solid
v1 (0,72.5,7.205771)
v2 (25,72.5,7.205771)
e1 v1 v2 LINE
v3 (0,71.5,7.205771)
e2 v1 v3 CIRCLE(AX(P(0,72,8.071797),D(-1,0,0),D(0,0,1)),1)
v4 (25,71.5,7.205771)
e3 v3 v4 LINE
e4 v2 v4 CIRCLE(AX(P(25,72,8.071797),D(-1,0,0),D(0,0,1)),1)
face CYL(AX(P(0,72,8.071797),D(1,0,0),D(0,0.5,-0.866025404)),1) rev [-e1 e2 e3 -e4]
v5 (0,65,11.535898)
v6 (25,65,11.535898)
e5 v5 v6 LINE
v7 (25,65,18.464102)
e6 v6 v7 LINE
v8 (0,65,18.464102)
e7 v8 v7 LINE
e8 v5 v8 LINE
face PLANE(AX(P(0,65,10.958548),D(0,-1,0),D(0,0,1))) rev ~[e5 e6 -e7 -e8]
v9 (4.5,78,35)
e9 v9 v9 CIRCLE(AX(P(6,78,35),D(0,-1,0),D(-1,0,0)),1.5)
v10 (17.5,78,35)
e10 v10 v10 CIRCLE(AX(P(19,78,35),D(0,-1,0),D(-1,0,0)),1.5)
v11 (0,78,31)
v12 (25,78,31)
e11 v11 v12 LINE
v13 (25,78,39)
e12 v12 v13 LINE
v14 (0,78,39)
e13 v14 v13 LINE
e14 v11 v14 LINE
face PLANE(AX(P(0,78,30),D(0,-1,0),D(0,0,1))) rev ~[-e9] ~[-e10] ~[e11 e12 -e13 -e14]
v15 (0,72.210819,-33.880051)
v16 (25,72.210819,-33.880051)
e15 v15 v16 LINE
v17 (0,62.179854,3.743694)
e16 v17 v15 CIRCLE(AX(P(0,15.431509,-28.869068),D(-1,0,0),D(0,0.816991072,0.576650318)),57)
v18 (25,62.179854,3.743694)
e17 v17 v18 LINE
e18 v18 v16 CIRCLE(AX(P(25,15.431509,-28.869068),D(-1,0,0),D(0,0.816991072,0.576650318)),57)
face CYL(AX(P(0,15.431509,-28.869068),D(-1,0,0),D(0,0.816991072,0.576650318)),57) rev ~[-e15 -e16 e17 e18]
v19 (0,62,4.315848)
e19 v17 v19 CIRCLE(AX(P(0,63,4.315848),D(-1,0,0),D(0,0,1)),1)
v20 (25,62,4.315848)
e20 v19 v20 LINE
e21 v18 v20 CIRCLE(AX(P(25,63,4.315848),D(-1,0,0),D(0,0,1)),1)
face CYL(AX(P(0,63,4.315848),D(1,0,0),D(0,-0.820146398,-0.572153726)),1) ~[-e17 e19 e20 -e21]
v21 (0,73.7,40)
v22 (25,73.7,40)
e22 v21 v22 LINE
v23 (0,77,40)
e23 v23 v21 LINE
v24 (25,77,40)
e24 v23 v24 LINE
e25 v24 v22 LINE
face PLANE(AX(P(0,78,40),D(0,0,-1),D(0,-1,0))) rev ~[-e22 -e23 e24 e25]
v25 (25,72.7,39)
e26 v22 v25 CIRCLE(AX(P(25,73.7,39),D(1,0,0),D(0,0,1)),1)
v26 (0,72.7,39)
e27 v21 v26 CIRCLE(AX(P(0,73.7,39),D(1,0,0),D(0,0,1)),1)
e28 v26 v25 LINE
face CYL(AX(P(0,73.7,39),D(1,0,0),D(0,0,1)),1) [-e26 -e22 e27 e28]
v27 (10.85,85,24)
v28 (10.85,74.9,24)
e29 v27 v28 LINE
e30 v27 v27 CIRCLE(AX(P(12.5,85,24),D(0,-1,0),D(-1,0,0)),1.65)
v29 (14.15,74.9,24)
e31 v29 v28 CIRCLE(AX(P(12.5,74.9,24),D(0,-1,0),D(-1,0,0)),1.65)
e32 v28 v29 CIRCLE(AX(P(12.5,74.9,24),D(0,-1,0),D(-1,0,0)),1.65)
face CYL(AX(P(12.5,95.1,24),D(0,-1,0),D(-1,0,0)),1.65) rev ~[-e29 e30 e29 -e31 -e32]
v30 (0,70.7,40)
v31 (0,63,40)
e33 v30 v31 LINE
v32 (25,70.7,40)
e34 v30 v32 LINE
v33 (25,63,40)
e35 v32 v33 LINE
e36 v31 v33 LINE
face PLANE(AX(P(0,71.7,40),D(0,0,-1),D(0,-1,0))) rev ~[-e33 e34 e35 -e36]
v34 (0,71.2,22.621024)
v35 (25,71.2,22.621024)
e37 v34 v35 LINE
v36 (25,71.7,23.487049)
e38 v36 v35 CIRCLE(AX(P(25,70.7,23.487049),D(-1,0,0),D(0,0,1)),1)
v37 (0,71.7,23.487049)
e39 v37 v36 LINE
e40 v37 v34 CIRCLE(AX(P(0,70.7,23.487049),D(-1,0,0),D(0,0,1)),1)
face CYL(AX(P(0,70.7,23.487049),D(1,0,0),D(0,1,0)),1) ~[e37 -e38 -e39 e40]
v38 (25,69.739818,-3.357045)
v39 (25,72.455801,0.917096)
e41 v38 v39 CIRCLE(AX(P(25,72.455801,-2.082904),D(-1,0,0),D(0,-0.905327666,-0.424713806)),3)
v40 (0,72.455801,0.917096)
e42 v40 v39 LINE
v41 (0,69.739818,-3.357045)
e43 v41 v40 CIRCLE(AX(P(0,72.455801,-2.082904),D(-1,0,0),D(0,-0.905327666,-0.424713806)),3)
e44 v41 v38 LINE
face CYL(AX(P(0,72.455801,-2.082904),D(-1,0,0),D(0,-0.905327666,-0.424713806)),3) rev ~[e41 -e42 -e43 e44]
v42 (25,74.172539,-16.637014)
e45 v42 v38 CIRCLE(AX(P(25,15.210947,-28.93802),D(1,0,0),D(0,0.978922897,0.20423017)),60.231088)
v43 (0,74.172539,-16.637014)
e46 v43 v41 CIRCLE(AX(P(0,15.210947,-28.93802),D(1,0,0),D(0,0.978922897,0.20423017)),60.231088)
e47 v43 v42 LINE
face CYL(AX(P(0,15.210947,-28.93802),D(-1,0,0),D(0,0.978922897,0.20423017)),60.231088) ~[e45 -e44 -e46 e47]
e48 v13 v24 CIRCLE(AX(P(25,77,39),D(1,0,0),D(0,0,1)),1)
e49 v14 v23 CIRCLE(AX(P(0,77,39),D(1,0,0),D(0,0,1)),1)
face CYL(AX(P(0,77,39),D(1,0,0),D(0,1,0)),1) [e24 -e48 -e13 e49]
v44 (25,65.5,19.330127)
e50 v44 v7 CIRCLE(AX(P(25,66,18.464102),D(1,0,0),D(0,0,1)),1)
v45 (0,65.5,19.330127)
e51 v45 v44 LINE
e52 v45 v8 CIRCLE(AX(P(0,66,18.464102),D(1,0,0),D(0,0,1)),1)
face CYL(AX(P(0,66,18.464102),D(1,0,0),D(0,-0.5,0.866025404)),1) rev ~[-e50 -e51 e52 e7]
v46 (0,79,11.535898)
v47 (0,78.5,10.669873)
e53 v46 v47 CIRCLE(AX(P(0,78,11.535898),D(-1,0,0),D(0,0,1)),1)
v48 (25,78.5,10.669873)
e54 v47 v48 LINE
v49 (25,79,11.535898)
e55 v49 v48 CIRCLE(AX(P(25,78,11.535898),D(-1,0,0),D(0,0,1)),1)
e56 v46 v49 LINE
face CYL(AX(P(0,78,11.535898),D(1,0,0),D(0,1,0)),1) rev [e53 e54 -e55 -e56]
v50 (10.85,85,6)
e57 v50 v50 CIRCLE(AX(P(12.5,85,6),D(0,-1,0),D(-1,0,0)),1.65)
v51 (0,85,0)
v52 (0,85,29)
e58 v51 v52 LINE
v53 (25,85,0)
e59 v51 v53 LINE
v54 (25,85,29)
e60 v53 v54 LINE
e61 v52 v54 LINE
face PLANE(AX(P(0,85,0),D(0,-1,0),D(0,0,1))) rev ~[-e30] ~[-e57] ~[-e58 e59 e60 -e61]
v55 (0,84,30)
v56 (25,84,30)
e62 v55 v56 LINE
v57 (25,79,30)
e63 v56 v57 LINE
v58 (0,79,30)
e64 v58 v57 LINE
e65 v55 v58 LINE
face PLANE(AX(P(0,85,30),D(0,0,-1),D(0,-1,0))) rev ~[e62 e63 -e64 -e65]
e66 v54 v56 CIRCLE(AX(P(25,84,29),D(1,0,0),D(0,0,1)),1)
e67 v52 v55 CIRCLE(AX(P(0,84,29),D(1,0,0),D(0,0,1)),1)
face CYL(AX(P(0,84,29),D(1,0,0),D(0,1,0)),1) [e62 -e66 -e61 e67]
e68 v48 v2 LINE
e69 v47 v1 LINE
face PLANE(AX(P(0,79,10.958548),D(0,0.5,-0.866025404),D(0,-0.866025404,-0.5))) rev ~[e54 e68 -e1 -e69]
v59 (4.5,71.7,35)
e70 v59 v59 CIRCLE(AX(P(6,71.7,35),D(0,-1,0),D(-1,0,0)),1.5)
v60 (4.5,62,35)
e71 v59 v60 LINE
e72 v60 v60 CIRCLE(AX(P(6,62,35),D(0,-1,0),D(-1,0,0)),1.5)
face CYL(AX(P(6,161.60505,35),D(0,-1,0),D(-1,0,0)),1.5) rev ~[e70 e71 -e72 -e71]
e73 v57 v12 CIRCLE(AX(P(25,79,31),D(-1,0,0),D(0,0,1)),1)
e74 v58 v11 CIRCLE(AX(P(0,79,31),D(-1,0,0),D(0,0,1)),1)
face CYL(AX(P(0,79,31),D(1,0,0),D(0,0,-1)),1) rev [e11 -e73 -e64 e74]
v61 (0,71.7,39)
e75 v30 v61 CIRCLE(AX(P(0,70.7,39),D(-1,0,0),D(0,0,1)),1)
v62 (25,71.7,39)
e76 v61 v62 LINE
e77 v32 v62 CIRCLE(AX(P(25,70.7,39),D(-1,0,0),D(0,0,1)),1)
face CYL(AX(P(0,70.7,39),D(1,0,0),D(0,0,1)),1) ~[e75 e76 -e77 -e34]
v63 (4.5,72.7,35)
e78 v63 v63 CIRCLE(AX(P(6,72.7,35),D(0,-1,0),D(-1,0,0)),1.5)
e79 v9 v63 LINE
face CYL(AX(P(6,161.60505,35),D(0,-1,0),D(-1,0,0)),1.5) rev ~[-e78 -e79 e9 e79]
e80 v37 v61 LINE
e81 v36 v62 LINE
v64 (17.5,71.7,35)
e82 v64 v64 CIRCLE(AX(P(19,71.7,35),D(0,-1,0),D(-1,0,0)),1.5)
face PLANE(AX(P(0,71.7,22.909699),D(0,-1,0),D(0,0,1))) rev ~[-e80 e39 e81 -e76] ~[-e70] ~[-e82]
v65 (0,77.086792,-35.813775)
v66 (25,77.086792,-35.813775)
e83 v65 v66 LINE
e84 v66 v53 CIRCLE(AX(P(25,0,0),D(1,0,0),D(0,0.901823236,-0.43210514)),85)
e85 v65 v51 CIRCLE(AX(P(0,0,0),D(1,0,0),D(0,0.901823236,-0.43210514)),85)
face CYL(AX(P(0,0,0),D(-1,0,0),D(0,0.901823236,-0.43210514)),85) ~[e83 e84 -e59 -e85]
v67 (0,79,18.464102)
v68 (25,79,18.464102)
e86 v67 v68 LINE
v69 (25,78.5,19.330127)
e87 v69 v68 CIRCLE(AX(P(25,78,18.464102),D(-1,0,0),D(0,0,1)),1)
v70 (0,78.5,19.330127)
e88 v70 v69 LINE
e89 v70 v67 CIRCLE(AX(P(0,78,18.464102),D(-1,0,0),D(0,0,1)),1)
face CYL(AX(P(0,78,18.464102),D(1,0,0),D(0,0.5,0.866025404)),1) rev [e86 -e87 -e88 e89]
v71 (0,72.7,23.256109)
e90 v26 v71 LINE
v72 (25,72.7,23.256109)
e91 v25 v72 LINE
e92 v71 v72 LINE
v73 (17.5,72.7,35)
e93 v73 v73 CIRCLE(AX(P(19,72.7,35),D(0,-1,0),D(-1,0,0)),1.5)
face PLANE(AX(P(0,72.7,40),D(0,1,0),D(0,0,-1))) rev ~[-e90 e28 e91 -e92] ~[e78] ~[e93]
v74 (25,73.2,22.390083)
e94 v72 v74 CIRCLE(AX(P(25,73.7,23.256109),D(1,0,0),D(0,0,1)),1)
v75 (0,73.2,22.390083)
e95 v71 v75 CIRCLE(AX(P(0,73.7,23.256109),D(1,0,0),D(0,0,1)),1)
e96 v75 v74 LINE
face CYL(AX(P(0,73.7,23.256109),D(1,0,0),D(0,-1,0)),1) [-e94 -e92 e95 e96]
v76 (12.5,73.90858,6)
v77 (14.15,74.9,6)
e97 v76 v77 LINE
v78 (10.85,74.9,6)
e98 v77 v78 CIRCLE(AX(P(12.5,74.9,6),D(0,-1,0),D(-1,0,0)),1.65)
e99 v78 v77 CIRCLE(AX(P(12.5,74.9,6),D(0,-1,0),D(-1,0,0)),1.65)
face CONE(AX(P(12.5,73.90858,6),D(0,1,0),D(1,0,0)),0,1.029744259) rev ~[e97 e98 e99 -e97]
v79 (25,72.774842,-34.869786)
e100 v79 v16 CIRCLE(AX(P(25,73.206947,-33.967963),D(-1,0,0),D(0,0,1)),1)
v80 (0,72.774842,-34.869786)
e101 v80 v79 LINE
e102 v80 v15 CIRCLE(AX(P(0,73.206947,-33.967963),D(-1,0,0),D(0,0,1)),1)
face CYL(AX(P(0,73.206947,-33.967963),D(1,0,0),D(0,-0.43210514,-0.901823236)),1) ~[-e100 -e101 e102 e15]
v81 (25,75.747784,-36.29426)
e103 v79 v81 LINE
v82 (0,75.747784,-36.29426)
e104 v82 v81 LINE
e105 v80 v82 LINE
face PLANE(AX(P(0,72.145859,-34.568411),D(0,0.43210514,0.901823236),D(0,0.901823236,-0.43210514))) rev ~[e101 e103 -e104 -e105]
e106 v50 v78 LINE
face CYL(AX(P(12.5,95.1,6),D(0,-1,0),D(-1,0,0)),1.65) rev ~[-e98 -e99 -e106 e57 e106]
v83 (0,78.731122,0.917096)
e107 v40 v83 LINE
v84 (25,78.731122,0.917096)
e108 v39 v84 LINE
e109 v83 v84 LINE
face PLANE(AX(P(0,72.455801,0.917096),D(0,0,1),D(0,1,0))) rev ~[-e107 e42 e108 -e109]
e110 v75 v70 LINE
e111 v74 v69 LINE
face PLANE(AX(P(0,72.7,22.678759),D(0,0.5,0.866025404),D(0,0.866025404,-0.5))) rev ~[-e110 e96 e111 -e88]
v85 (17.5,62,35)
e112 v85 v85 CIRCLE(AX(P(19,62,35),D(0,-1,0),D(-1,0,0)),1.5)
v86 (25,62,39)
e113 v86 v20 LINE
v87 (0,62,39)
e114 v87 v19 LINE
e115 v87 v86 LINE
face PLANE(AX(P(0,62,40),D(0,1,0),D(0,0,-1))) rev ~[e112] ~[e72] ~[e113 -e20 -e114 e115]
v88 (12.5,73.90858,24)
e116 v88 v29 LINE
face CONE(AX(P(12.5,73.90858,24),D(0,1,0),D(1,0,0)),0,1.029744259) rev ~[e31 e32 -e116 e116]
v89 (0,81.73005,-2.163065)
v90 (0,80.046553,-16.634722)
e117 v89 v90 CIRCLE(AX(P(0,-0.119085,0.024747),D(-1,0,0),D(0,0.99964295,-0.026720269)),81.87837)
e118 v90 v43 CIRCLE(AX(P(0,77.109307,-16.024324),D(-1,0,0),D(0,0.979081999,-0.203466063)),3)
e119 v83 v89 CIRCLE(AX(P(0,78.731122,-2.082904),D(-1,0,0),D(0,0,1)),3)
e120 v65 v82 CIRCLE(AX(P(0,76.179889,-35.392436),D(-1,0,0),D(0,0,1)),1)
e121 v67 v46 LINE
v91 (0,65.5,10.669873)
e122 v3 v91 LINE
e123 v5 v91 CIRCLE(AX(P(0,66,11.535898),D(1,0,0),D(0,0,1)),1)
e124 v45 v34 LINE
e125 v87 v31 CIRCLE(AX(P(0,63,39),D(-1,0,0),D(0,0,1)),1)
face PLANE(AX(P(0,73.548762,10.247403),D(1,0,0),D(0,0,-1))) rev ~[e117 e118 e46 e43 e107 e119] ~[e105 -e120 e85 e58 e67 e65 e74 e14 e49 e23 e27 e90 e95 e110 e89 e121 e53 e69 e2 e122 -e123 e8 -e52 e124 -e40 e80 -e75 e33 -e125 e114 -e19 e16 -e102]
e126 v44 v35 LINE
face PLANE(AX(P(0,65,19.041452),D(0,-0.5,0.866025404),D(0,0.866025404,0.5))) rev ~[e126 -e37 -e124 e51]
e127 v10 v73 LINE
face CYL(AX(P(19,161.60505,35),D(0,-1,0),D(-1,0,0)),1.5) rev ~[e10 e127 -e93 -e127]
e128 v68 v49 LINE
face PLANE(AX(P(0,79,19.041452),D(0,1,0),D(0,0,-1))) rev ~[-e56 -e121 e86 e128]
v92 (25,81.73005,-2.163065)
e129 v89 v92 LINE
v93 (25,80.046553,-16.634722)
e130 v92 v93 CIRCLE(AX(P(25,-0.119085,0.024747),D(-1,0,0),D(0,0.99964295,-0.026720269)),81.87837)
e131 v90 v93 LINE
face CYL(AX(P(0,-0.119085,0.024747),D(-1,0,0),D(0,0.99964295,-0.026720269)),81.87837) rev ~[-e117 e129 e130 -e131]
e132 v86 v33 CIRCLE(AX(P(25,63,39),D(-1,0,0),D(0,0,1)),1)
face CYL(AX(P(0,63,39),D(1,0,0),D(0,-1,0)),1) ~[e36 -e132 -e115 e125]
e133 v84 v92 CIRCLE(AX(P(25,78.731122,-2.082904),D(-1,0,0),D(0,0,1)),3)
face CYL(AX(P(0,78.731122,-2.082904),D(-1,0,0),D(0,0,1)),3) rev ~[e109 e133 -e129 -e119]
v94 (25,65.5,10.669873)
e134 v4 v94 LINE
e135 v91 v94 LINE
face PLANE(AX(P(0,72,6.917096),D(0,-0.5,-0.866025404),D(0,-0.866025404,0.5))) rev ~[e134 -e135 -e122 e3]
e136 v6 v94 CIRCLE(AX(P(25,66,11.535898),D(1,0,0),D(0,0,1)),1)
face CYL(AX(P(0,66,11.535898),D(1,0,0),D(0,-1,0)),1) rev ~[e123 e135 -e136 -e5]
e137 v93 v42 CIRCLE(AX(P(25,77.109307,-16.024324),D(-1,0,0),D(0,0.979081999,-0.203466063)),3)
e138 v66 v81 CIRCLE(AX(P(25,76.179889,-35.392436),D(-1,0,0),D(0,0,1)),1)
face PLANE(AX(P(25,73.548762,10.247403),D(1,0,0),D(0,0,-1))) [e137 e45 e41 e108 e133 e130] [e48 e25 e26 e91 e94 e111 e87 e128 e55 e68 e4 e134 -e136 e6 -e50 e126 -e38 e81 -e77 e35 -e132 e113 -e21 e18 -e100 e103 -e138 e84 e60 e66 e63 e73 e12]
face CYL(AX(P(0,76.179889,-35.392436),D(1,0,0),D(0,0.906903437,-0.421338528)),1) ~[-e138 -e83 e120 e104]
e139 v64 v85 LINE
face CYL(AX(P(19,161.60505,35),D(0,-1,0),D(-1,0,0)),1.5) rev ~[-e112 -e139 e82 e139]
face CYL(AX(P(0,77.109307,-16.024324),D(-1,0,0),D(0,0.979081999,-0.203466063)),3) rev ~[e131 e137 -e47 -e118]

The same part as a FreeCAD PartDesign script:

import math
import FreeCAD as App
import Part
import Sketcher
from FreeCAD import Vector
Q = App.Units.Quantity


def edges_at(feature, points):
    """Names of the edges that pass closest to the given points."""
    edges = feature.Shape.Edges
    near = lambda p: min(range(len(edges)), key=lambda i: edges[i].distToShape(Part.Vertex(*p))[0])
    return sorted({f"Edge{near(p) + 1}" for p in points})

doc = App.newDocument("Part")
body = doc.addObject("PartDesign::Body", "Body")

# Sketch on YZ plane
sketch1 = body.newObject("Sketcher::SketchObject", "Sketch")
sketch1.AttachmentSupport = (doc.getObject("YZ_Plane"), [""])
sketch1.MapMode = "FlatFace"
sketch1.addGeometry([
    Part.LineSegment(Vector(85, 0, 0), Vector(85, 30, 0)),  # 0
    Part.LineSegment(Vector(85, 30, 0), Vector(78, 30, 0)),  # 1
    Part.LineSegment(Vector(78, 30, 0), Vector(78, 40, 0)),  # 2
    Part.LineSegment(Vector(78, 40, 0), Vector(72.7, 40, 0)),  # 3
    Part.LineSegment(Vector(72.7, 40, 0), Vector(72.7, 22.7, 0)),  # 4
    Part.LineSegment(Vector(72.7, 22.7, 0), Vector(79, 19, 0)),  # 5
    Part.LineSegment(Vector(79, 19, 0), Vector(79, 11, 0)),  # 6
    Part.LineSegment(Vector(79, 11, 0), Vector(72, 6.9, 0)),  # 7
    Part.LineSegment(Vector(72, 6.9, 0), Vector(65, 11, 0)),  # 8
    Part.LineSegment(Vector(65, 11, 0), Vector(65, 19, 0)),  # 9
    Part.LineSegment(Vector(65, 19, 0), Vector(71.7, 22.9, 0)),  # 10
    Part.LineSegment(Vector(71.7, 22.9, 0), Vector(71.7, 40, 0)),  # 11
    Part.LineSegment(Vector(71.7, 40, 0), Vector(62, 40, 0)),  # 12
    Part.LineSegment(Vector(62, 40, 0), Vector(62, 4, 0)),  # 13
    Part.ArcOfCircle(Part.Circle(Vector(15.4, -28.9, 0), Vector(0, 0, 1), 57), math.radians(-6), math.radians(35)),  # 14
    Part.LineSegment(Vector(72.1, -34.6, 0), Vector(76.7, -36.7, 0)),  # 15
    Part.ArcOfCircle(Part.Circle(Vector(0, 0, 0), Vector(0, 0, 1), 85), math.radians(-26), math.radians(0)),  # 16
    Part.ArcOfCircle(Part.Circle(Vector(72.5, -2.1, 0), Vector(0, 0, 1), 3), math.radians(90), math.radians(205)),  # 17
    Part.LineSegment(Vector(72.5, 0.9, 0), Vector(78.7, 0.9, 0)),  # 18
    Part.ArcOfCircle(Part.Circle(Vector(78.7, -2.1, 0), Vector(0, 0, 1), 3), math.radians(-2), math.radians(90)),  # 19
    Part.ArcOfCircle(Part.Circle(Vector(-0.1, 0, 0), Vector(0, 0, 1), 81.9), math.radians(-11.74), math.radians(-1.53)),  # 20
    Part.ArcOfCircle(Part.Circle(Vector(77.1, -16, 0), Vector(0, 0, 1), 3), math.radians(-168), math.radians(-12)),  # 21
    Part.ArcOfCircle(Part.Circle(Vector(15.2, -28.9, 0), Vector(0, 0, 1), 60.2), math.radians(11.78), math.radians(25.13)),  # 22
], False)
sketch1.addConstraint([
    Sketcher.Constraint("Coincident", 0, 2, 1, 1),
    Sketcher.Constraint("Coincident", 1, 2, 2, 1),
    Sketcher.Constraint("Coincident", 2, 2, 3, 1),
    Sketcher.Constraint("Coincident", 3, 2, 4, 1),
    Sketcher.Constraint("Coincident", 4, 2, 5, 1),
    Sketcher.Constraint("Coincident", 5, 2, 6, 1),
    Sketcher.Constraint("Coincident", 6, 2, 7, 1),
    Sketcher.Constraint("Coincident", 7, 2, 8, 1),
    Sketcher.Constraint("Coincident", 8, 2, 9, 1),
    Sketcher.Constraint("Coincident", 9, 2, 10, 1),
    Sketcher.Constraint("Coincident", 10, 2, 11, 1),
    Sketcher.Constraint("Coincident", 11, 2, 12, 1),
    Sketcher.Constraint("Coincident", 12, 2, 13, 1),
    Sketcher.Constraint("Coincident", 13, 2, 14, 2),
    Sketcher.Constraint("Coincident", 14, 1, 15, 1),
    Sketcher.Constraint("Coincident", 15, 2, 16, 1),
    Sketcher.Constraint("Tangent", 16, 2, 0, 1),
    Sketcher.Constraint("Tangent", 17, 1, 18, 1),
    Sketcher.Constraint("Tangent", 18, 2, 19, 2),
    Sketcher.Constraint("Tangent", 19, 1, 20, 2),
    Sketcher.Constraint("Tangent", 20, 1, 21, 2),
    Sketcher.Constraint("Tangent", 21, 1, 22, 1),
    Sketcher.Constraint("Tangent", 22, 2, 17, 2),
    Sketcher.Constraint("Vertical", 0),
    Sketcher.Constraint("Horizontal", 1),
    Sketcher.Constraint("Vertical", 2),
    Sketcher.Constraint("Horizontal", 3),
    Sketcher.Constraint("Vertical", 4),
    Sketcher.Constraint("Vertical", 6),
    Sketcher.Constraint("Vertical", 9),
    Sketcher.Constraint("Vertical", 11),
    Sketcher.Constraint("Horizontal", 12),
    Sketcher.Constraint("Vertical", 13),
    Sketcher.Constraint("Horizontal", 18),
    Sketcher.Constraint("Coincident", 16, 3, -1, 1),
    Sketcher.Constraint("Equal", 17, 19),
    Sketcher.Constraint("Equal", 19, 21),
    Sketcher.Constraint("Parallel", 5, 8),
    Sketcher.Constraint("Parallel", 7, 10),
    Sketcher.Constraint("Horizontal", 6, 2, 8, 2),
    Sketcher.Constraint("Horizontal", 5, 2, 9, 2),
    Sketcher.Constraint("Horizontal", 3, 2, 11, 2),
    Sketcher.Constraint("Equal", 7, 8),
    Sketcher.Constraint("Radius", 14, Q("57 mm")),
    Sketcher.Constraint("Radius", 16, Q("85 mm")),
    Sketcher.Constraint("Radius", 17, Q("3 mm")),
    Sketcher.Constraint("DistanceX", 1, 2, 1, 1, Q("7 mm")),
    Sketcher.Constraint("DistanceY", 0, 1, 0, 2, Q("30 mm")),
    Sketcher.Constraint("DistanceY", 2, 1, 2, 2, Q("10 mm")),
    Sketcher.Constraint("DistanceY", 13, 2, 13, 1, Q("36 mm")),
    Sketcher.Constraint("Angle", 5, Q("-30 deg")),
    Sketcher.Constraint("Distance", 15, Q("5 mm")),
    Sketcher.Constraint("DistanceX", 3, 2, 3, 1, Q("5.3 mm")),
    Sketcher.Constraint("DistanceX", 12, 2, 12, 1, Q("9.7 mm")),
    Sketcher.Constraint("DistanceX", -1, 1, 5, 2, Q("79 mm")),
    Sketcher.Constraint("DistanceX", -1, 1, 7, 2, Q("72 mm")),
    Sketcher.Constraint("DistanceX", -1, 1, 12, 2, Q("62 mm")),
    Sketcher.Constraint("DistanceY", 17, 3, 7, 2, Q("9 mm")),
    Sketcher.Constraint("Radius", 20, Q("81.87837 mm")),
    Sketcher.Constraint("Radius", 22, Q("60.231088 mm")),
    Sketcher.Constraint("DistanceY", 11, 1, 11, 2, Q("17.090301 mm")),
    Sketcher.Constraint("DistanceX", 18, 1, 18, 2, Q("6.275321 mm")),
    Sketcher.Constraint("DistanceX", -1, 1, 17, 3, Q("72.455801 mm")),
    Sketcher.Constraint("DistanceX", 14, 3, 21, 3, Q("61.677798 mm")),
    Sketcher.Constraint("DistanceY", 6, 2, 6, 1, Q("8.082904 mm")),
    Sketcher.Constraint("DistanceX", -1, 1, 14, 3, Q("15.431509 mm")),
    Sketcher.Constraint("DistanceY", 22, 3, -1, 1, Q("28.93802 mm")),
    Sketcher.Constraint("DistanceX", -1, 1, 15, 2, Q("76.654975 mm")),
])
pad1 = body.newObject("PartDesign::Pad", "Pad")
pad1.Profile = sketch1
pad1.Length = 25
doc.recompute()

fillet = body.newObject("PartDesign::Fillet", "Fillet")
fillet.Base = (pad1, edges_at(pad1, [
    (12.5, 76.655, -36.729),
    (12.5, 72.146, -34.568),
    (12.5, 62, 4),
    (12.5, 62, 40),
    (12.5, 71.7, 40),
    (12.5, 71.7, 22.91),
    (12.5, 65, 19.041),
    (12.5, 65, 10.959),
    (12.5, 72, 6.917),
    (12.5, 79, 10.959),
    (12.5, 79, 19.041),
    (12.5, 72.7, 22.679),
    (12.5, 72.7, 40),
    (12.5, 78, 40),
    (12.5, 78, 30),
    (12.5, 85, 30),
]))
fillet.Radius = 1

# Sketch on XZ plane
sketch2 = body.newObject("Sketcher::SketchObject", "Sketch001")
sketch2.AttachmentSupport = (doc.getObject("XZ_Plane"), [""])
sketch2.MapMode = "FlatFace"
sketch2.AttachmentOffset = App.Placement(Vector(0, 0, -78), App.Rotation())
sketch2.addGeometry([
    Part.Circle(Vector(6, 35, 0), Vector(0, 0, 1), 1.5),
    Part.Circle(Vector(19, 35, 0), Vector(0, 0, 1), 1.5),
], False)
sketch2.addConstraint([
    Sketcher.Constraint("Equal", 0, 1),
    Sketcher.Constraint("Horizontal", 0, 3, 1, 3),
    Sketcher.Constraint("Diameter", 0, Q("3 mm")),
    Sketcher.Constraint("DistanceX", -1, 1, 0, 3, Q("6 mm")),
    Sketcher.Constraint("DistanceY", -1, 1, 0, 3, Q("35 mm")),
    Sketcher.Constraint("DistanceX", -1, 1, 1, 3, Q("19 mm")),
])
doc.recompute()
hole = body.newObject("PartDesign::Hole", "Hole")
hole.Profile = sketch2
hole.ThreadType = "None"
hole.Diameter = 3
hole.DepthType = "ThroughAll"
hole.Reversed = True

# Sketch on XZ plane
sketch3 = body.newObject("Sketcher::SketchObject", "Sketch002")
sketch3.AttachmentSupport = (doc.getObject("XZ_Plane"), [""])
sketch3.MapMode = "FlatFace"
sketch3.AttachmentOffset = App.Placement(Vector(0, 0, -85), App.Rotation())
sketch3.addGeometry([
    Part.Circle(Vector(12.5, 24, 0), Vector(0, 0, 1), 1.6),
    Part.Circle(Vector(12.5, 6, 0), Vector(0, 0, 1), 1.6),
], False)
sketch3.addConstraint([
    Sketcher.Constraint("Equal", 0, 1),
    Sketcher.Constraint("Vertical", 0, 3, 1, 3),
    Sketcher.Constraint("Diameter", 0, Q("3.3 mm")),
    Sketcher.Constraint("DistanceY", -1, 1, 0, 3, Q("24 mm")),
    Sketcher.Constraint("DistanceY", -1, 1, 1, 3, Q("6 mm")),
    Sketcher.Constraint("DistanceX", -1, 1, 0, 3, Q("12.5 mm")),
])
doc.recompute()
hole2 = body.newObject("PartDesign::Hole", "Hole001")
hole2.Profile = sketch3
hole2.ThreadType = "None"
hole2.Diameter = 3.3
hole2.DepthType = "Dimension"
hole2.Depth = 10.1
hole2.DrillPoint = "Angled"
hole2.DrillPointAngle = 118
hole2.Reversed = True

doc.recompute()
